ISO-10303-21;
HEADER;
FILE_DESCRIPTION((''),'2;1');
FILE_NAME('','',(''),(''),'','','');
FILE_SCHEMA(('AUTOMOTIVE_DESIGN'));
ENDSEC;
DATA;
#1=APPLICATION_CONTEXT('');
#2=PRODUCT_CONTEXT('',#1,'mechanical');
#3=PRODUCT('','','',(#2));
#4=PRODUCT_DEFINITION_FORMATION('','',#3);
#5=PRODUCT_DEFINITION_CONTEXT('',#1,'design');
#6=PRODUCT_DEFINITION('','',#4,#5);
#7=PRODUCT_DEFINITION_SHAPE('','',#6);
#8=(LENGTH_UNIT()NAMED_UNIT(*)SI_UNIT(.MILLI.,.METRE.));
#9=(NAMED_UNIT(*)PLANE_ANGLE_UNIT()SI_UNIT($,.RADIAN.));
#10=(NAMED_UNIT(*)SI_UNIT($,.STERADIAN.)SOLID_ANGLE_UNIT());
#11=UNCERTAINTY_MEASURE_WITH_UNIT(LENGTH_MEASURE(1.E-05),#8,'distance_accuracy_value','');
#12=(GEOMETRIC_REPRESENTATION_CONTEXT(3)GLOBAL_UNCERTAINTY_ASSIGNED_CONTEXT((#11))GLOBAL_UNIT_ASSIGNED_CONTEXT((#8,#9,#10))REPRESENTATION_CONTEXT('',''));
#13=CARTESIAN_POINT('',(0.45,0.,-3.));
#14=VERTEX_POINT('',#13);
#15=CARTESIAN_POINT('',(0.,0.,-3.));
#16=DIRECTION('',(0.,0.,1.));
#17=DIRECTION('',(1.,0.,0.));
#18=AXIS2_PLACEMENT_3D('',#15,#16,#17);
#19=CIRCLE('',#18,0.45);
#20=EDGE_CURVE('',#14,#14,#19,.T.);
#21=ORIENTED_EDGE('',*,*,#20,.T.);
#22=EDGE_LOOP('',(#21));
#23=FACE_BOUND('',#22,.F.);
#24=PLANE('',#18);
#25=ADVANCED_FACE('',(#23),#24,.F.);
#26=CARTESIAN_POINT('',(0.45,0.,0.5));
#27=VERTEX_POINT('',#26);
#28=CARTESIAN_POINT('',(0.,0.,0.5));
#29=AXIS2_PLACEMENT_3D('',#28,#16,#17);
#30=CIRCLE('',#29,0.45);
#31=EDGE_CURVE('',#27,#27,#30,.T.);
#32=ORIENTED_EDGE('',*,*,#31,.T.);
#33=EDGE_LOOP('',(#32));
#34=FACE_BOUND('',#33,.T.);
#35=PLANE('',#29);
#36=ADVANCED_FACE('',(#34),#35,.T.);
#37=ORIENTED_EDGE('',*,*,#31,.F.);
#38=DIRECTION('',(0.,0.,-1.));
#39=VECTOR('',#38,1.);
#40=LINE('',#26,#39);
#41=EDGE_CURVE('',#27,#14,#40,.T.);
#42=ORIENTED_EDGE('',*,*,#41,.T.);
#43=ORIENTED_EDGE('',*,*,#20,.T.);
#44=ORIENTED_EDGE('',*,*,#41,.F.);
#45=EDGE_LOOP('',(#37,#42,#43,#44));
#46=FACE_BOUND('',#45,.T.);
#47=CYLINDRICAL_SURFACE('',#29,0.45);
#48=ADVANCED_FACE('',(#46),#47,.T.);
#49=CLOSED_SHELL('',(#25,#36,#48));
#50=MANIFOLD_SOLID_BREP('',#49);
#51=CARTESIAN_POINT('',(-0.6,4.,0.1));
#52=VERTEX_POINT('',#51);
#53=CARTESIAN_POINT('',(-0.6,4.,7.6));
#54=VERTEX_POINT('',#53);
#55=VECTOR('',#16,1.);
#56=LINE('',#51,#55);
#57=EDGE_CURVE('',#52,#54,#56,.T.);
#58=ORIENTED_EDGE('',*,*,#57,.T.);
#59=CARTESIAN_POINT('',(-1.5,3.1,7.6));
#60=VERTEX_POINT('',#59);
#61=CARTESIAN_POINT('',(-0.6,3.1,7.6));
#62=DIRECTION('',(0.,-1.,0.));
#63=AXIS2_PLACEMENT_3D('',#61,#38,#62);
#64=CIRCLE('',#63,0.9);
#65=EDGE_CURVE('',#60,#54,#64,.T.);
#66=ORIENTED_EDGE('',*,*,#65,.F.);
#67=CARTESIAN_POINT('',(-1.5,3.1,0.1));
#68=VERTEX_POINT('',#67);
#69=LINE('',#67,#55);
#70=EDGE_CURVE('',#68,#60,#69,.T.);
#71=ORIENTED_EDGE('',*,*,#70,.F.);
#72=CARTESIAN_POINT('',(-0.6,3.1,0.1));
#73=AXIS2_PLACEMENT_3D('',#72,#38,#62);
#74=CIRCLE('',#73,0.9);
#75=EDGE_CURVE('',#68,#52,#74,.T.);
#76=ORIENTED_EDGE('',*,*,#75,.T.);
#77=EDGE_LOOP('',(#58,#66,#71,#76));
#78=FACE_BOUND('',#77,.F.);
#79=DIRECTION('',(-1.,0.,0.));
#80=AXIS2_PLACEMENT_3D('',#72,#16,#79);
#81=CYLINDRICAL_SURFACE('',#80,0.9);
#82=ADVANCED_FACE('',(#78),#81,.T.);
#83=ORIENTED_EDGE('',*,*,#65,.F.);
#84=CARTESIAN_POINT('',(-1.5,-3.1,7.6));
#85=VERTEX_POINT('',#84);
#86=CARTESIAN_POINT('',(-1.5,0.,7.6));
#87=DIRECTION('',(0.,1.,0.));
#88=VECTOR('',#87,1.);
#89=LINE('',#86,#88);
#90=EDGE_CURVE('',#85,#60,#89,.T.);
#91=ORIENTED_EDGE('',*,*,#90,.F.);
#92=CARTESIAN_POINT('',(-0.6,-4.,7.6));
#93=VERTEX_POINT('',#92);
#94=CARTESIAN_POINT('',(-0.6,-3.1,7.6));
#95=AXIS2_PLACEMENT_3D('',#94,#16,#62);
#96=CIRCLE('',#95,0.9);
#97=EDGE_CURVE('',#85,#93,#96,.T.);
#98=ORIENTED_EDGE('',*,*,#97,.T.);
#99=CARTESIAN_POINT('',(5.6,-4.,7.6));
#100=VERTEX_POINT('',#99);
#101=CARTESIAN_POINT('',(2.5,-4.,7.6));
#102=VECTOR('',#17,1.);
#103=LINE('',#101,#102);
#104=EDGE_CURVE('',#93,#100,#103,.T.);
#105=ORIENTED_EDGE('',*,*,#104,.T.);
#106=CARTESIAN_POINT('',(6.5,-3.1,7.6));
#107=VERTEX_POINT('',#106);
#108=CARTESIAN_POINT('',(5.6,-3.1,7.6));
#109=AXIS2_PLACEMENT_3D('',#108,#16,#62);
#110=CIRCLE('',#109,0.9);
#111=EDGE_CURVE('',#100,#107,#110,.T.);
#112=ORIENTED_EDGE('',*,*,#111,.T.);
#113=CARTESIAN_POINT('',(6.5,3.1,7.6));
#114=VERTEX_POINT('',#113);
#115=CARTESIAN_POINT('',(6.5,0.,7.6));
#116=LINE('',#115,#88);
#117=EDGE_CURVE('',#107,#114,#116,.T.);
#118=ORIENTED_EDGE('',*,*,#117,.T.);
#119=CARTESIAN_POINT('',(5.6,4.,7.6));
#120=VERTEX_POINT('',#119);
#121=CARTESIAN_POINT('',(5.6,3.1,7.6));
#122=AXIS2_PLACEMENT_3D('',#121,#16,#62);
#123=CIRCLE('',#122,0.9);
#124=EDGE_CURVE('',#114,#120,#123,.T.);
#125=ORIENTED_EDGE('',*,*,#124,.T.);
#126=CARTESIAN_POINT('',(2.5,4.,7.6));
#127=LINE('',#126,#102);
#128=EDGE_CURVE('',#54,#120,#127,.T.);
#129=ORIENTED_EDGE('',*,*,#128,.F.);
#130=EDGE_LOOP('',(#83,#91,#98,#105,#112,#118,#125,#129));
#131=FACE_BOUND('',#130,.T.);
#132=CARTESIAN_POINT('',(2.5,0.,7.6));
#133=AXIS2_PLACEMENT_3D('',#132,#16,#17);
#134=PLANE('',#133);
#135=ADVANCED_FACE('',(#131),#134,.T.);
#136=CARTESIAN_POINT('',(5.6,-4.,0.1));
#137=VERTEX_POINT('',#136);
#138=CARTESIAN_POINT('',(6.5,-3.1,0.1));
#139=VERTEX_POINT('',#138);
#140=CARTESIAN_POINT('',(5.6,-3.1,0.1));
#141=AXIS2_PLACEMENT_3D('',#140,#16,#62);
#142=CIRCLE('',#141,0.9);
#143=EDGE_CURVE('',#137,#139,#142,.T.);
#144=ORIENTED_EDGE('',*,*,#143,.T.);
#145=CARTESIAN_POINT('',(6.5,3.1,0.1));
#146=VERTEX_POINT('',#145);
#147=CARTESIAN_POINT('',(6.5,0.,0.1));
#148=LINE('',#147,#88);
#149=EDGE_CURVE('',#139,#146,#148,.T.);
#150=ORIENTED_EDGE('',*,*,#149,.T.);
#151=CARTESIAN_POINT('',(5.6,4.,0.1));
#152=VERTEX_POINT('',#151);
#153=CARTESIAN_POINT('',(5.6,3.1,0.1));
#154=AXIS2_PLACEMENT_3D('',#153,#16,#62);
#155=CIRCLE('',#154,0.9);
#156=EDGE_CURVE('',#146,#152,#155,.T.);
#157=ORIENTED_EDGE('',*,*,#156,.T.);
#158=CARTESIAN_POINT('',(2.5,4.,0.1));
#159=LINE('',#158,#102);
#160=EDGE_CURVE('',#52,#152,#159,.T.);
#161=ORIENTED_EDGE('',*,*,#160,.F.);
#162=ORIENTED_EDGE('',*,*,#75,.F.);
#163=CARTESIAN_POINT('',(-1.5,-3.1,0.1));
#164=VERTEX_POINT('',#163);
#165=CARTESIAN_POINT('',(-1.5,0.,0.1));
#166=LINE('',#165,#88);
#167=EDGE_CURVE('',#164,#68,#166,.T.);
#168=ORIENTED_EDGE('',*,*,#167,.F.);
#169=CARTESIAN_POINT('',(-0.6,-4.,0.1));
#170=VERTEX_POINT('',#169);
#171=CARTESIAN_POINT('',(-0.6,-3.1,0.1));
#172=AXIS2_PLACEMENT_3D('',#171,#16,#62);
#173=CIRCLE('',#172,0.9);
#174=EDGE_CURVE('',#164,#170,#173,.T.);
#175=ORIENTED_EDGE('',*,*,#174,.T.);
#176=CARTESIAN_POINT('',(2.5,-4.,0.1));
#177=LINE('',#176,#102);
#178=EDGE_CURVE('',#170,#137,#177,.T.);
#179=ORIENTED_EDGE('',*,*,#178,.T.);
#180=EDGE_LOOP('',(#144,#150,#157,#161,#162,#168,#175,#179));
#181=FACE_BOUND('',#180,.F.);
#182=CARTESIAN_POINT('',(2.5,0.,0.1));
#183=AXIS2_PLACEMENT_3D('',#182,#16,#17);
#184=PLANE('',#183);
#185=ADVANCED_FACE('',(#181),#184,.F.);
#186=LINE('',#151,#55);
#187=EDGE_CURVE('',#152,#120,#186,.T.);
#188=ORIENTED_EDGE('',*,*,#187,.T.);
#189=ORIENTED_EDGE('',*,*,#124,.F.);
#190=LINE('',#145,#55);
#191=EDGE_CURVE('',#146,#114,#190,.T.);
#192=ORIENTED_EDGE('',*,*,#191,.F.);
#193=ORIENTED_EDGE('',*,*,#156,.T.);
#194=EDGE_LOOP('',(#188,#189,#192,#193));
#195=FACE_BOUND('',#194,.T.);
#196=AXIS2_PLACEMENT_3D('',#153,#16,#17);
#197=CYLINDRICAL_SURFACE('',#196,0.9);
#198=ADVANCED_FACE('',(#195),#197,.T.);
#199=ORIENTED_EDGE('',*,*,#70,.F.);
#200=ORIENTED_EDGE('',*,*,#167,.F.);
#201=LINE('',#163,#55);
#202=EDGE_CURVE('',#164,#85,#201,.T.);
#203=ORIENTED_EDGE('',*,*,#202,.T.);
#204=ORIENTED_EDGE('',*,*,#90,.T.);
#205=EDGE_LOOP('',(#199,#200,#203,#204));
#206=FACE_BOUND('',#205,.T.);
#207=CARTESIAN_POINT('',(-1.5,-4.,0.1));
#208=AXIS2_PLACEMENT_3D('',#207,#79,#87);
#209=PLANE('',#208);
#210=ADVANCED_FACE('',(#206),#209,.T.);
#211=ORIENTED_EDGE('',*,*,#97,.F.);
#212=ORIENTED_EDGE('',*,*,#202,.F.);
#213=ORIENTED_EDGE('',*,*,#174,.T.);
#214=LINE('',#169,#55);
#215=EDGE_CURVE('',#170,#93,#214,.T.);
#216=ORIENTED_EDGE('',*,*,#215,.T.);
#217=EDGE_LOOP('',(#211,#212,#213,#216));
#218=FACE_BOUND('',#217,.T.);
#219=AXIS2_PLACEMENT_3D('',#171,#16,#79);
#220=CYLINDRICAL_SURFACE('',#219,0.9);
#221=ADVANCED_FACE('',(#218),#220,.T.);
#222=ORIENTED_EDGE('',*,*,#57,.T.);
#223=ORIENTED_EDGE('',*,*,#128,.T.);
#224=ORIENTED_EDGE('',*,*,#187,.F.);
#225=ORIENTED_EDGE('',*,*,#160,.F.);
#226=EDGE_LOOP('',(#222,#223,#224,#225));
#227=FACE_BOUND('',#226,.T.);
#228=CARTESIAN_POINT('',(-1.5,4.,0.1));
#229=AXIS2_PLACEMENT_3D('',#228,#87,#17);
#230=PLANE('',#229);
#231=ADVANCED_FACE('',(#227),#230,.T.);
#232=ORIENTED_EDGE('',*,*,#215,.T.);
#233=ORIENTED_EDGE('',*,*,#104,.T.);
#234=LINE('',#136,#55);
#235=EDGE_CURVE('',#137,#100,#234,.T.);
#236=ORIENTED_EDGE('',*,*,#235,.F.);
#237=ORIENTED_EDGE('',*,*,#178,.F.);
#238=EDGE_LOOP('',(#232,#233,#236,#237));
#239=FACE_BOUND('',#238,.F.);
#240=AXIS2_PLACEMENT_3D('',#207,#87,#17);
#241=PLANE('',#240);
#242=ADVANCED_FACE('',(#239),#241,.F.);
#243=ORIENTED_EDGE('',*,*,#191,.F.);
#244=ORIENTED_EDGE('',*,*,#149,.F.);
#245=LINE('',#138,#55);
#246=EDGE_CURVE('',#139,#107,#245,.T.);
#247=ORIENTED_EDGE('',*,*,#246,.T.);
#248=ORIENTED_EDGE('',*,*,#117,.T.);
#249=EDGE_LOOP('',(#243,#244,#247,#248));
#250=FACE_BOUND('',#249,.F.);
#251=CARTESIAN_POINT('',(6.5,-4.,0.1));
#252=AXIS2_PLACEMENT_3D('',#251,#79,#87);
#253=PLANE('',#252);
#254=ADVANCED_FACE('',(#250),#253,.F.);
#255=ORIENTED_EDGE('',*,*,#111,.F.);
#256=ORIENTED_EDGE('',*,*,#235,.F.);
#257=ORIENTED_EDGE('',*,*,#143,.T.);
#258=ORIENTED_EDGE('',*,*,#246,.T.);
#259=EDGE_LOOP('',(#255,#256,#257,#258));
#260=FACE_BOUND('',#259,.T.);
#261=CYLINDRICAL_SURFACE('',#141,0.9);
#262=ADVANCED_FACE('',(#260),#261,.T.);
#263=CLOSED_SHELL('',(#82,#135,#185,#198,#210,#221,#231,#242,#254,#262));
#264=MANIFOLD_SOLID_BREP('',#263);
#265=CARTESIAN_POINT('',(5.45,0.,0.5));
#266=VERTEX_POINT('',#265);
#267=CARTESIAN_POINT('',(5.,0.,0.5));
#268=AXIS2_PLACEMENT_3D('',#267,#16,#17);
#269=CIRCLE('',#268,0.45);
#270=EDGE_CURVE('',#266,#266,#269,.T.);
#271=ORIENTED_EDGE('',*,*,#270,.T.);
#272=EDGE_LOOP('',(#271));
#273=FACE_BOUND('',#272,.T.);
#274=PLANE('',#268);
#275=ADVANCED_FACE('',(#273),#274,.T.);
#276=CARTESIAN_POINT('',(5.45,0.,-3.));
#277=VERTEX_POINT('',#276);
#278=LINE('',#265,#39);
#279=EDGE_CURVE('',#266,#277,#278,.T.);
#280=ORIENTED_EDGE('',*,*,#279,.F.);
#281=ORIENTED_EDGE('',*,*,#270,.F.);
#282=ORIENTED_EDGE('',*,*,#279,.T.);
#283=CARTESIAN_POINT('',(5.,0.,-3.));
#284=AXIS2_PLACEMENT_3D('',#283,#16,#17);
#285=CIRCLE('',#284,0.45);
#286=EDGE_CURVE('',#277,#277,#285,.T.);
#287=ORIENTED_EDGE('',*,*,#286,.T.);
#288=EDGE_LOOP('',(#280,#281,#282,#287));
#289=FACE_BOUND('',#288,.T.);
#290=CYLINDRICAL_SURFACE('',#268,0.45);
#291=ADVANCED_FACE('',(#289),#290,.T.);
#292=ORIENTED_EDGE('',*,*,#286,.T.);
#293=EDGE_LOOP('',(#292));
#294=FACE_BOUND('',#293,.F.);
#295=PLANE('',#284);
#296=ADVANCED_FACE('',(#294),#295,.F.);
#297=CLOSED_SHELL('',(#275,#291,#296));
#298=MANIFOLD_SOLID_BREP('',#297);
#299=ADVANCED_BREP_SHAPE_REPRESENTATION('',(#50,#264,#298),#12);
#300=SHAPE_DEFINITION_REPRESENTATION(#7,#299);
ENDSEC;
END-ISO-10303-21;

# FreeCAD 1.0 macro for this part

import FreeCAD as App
import Part
import Sketcher
from FreeCAD import Vector


def edges_at(feature, points):
    """Names of the edges that pass closest to the given points."""
    edges = feature.Shape.Edges
    near = lambda p: min(range(len(edges)), key=lambda i: edges[i].distToShape(Part.Vertex(*p))[0])
    return sorted({f"Edge{near(p) + 1}" for p in points})

doc = App.newDocument("Part")
params = doc.addObject("Spreadsheet::Sheet", "Params")
for row, (alias, value) in enumerate([
    ("sketch1_diameter", "0.9 mm"),
    ("pad1_length", "3.5 mm"),
    ("sketch2_width", "8 mm"),
    ("pad2_length", "7.5 mm"),
    ("fillet_radius", "0.9 mm"),
], start=1):
    params.set(f"A{row}", alias)
    params.set(f"B{row}", "=" + value)
    params.setAlias(f"B{row}", alias)

body = doc.addObject("PartDesign::Body", "Body")
body.AllowCompound = True

sketch1 = body.newObject("Sketcher::SketchObject", "Sketch")
sketch1.AttachmentSupport = (doc.getObject("XY_Plane"), [""])
sketch1.MapMode = "FlatFace"
sketch1.AttachmentOffset = App.Placement(Vector(0, 0, 0.5), App.Rotation())
sketch1.addGeometry([
    Part.Circle(Vector(0, 0, 0), Vector(0, 0, 1), 0.45),
    Part.Circle(Vector(5, 0, 0), Vector(0, 0, 1), 0.45),
], False)
sketch1.addConstraint([
    Sketcher.Constraint("Coincident", 0, 3, -1, 1),
    Sketcher.Constraint("Equal", 0, 1),
    Sketcher.Constraint("PointOnObject", 1, 3, -1),
    Sketcher.Constraint("Diameter", 0, 0.9),
    Sketcher.Constraint("DistanceX", -1, 1, 1, 3, 5.0),
])
sketch1.setExpression("Constraints[3]", "Params.sketch1_diameter")
pad1 = body.newObject("PartDesign::Pad", "Pad")
pad1.Profile = sketch1
pad1.setExpression("Length", "Params.pad1_length")
pad1.Reversed = True
body2 = doc.addObject("PartDesign::Body", "Body001")

sketch2 = body2.newObject("Sketcher::SketchObject", "Sketch001")
sketch2.AttachmentSupport = (doc.getObject("XY_Plane001"), [""])
sketch2.MapMode = "FlatFace"
sketch2.AttachmentOffset = App.Placement(Vector(0, 0, 0.1), App.Rotation())
sketch2.addGeometry([
    Part.LineSegment(Vector(-1.5, 4, 0), Vector(-1.5, -4, 0)),
    Part.LineSegment(Vector(-1.5, -4, 0), Vector(6.5, -4, 0)),
    Part.LineSegment(Vector(6.5, -4, 0), Vector(6.5, 4, 0)),
    Part.LineSegment(Vector(6.5, 4, 0), Vector(-1.5, 4, 0)),
], False)
sketch2.addConstraint([
    Sketcher.Constraint("Coincident", 0, 2, 1, 1),
    Sketcher.Constraint("Coincident", 1, 2, 2, 1),
    Sketcher.Constraint("Coincident", 2, 2, 3, 1),
    Sketcher.Constraint("Coincident", 3, 2, 0, 1),
    Sketcher.Constraint("Vertical", 0),
    Sketcher.Constraint("Horizontal", 1),
    Sketcher.Constraint("Vertical", 2),
    Sketcher.Constraint("Horizontal", 3),
    Sketcher.Constraint("Equal", 3, 0),
    Sketcher.Constraint("DistanceX", 1, 1, 1, 2, 8.0),
    Sketcher.Constraint("DistanceY", 0, 2, -1, 1, 4.0),
    Sketcher.Constraint("DistanceX", 0, 2, -1, 1, 1.5),
])
sketch2.setExpression("Constraints[9]", "Params.sketch2_width")
pad2 = body2.newObject("PartDesign::Pad", "Pad001")
pad2.Profile = sketch2
pad2.setExpression("Length", "Params.pad2_length")
doc.recompute()

fillet = body2.newObject("PartDesign::Fillet", "Fillet")
fillet.Base = (pad2, edges_at(pad2, [
    (6.5, -4, 3.85),
    (6.5, 4, 3.85),
    (-1.5, -4, 3.85),
    (-1.5, 4, 3.85),
]))
fillet.setExpression("Radius", "Params.fillet_radius")

doc.recompute()
